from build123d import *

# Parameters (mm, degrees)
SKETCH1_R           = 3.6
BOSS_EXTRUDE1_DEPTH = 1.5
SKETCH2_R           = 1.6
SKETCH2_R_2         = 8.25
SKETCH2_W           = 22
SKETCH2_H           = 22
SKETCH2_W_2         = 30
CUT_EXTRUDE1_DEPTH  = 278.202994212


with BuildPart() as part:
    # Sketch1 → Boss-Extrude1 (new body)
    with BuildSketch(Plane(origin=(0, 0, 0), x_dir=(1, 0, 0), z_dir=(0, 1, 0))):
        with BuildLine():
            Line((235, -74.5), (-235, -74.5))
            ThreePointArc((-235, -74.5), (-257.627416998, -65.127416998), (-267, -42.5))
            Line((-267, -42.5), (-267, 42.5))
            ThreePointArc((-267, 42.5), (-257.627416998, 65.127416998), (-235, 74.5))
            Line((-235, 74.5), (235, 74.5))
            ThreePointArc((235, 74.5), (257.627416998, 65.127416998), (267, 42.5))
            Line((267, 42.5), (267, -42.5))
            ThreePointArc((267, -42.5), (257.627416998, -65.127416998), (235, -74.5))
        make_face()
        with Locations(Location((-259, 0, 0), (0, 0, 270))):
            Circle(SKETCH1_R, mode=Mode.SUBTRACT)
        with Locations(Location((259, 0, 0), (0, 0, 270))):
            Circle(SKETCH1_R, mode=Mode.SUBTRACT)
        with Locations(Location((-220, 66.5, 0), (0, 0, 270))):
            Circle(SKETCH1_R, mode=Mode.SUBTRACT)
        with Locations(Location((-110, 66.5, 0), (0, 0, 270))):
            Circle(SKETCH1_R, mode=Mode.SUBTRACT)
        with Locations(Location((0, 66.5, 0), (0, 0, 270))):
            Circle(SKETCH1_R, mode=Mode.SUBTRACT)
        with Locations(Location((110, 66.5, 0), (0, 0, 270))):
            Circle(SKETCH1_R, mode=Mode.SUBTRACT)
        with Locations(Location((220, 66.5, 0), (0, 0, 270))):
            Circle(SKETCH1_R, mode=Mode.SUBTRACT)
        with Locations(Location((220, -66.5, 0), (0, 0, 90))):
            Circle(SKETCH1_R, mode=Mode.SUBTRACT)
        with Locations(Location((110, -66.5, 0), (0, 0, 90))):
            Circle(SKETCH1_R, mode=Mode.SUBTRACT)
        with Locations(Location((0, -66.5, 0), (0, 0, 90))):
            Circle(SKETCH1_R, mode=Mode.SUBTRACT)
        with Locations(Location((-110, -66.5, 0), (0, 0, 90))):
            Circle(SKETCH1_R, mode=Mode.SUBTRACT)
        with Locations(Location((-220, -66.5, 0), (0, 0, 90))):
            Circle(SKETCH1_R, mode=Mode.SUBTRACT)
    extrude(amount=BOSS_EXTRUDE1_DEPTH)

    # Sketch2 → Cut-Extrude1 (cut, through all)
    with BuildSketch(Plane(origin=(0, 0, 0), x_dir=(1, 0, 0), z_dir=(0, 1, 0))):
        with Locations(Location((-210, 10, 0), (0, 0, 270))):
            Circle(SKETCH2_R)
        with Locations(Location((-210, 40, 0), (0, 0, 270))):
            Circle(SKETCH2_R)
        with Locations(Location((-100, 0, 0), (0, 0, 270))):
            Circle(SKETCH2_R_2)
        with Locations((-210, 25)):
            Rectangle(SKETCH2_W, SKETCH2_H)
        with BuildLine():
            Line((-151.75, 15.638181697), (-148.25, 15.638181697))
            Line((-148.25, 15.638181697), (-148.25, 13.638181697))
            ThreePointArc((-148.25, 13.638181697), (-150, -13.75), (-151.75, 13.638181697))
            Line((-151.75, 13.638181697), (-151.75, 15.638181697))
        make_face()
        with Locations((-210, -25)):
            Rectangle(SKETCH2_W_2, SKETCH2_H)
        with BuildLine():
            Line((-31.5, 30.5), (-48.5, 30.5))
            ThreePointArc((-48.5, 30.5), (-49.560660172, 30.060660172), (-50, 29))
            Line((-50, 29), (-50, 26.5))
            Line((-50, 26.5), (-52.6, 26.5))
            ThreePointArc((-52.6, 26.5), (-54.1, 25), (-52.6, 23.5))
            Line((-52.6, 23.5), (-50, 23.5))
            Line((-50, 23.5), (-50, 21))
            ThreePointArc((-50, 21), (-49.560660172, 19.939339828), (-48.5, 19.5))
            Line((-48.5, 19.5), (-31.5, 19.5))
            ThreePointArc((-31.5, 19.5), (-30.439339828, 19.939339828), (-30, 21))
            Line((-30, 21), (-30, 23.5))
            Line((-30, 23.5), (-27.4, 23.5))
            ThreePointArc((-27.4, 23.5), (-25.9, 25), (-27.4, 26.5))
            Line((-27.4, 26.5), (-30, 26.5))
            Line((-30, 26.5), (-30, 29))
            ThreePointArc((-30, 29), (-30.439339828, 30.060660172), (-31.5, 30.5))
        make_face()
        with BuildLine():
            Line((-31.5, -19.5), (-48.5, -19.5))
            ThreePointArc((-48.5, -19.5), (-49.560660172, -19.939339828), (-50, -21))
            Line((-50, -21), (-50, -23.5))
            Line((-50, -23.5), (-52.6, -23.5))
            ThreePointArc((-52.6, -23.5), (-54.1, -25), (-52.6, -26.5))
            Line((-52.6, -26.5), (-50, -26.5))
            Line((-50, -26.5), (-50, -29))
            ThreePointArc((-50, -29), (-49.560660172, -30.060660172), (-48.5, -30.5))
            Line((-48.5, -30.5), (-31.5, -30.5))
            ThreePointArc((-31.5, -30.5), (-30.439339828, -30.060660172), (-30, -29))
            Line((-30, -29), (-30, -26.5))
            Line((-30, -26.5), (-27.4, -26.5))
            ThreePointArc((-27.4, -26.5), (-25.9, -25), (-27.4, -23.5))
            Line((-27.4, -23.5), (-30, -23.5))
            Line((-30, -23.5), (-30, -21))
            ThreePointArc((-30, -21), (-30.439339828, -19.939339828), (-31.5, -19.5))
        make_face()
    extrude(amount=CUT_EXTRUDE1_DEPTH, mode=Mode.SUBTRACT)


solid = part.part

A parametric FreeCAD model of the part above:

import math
import FreeCAD as App
import Part
import Sketcher
Q = App.Units.Quantity


def add_polygon(sketch, points):
    """Adds a closed chain of lines whose ends are joined by coincident constraints."""
    first, n = sketch.GeometryCount, len(points)
    for a, b in zip(points, points[1:] + points[:1]):
        sketch.addGeometry(Part.LineSegment(App.Vector(*a, 0), App.Vector(*b, 0)), False)
    for i in range(n):
        sketch.addConstraint(Sketcher.Constraint("Coincident", first + i, 2, first + (i + 1) % n, 1))

doc = App.newDocument("Part")
body = doc.addObject("PartDesign::Body", "Body")

sketch1 = body.newObject("Sketcher::SketchObject", "Sketch")
sketch1.AttachmentSupport = (doc.getObject("XZ_Plane"), [""])
sketch1.MapMode = "FlatFace"
sketch1.addGeometry(Part.LineSegment(App.Vector(-235, 74.5, 0), App.Vector(235, 74.5, 0)), False)
sketch1.addGeometry(Part.ArcOfCircle(Part.Circle(App.Vector(235, 42.5, 0), App.Vector(0, 0, 1), 32), math.radians(0), math.radians(90)), False)
sketch1.addGeometry(Part.LineSegment(App.Vector(267, 42.5, 0), App.Vector(267, -42.5, 0)), False)
sketch1.addGeometry(Part.ArcOfCircle(Part.Circle(App.Vector(235, -42.5, 0), App.Vector(0, 0, 1), 32), math.radians(-90), math.radians(0)), False)
sketch1.addGeometry(Part.LineSegment(App.Vector(235, -74.5, 0), App.Vector(-235, -74.5, 0)), False)
sketch1.addGeometry(Part.ArcOfCircle(Part.Circle(App.Vector(-235, -42.5, 0), App.Vector(0, 0, 1), 32), math.radians(180), math.radians(270)), False)
sketch1.addGeometry(Part.LineSegment(App.Vector(-267, -42.5, 0), App.Vector(-267, 42.5, 0)), False)
sketch1.addGeometry(Part.ArcOfCircle(Part.Circle(App.Vector(-235, 42.5, 0), App.Vector(0, 0, 1), 32), math.radians(90), math.radians(180)), False)
sketch1.addGeometry(Part.Circle(App.Vector(220, 66.5, 0), App.Vector(0, 0, 1), 3.6), False)
sketch1.addGeometry(Part.Circle(App.Vector(110, 66.5, 0), App.Vector(0, 0, 1), 3.6), False)
sketch1.addGeometry(Part.Circle(App.Vector(0, 66.5, 0), App.Vector(0, 0, 1), 3.6), False)
sketch1.addGeometry(Part.Circle(App.Vector(-110, 66.5, 0), App.Vector(0, 0, 1), 3.6), False)
sketch1.addGeometry(Part.Circle(App.Vector(-220, 66.5, 0), App.Vector(0, 0, 1), 3.6), False)
sketch1.addGeometry(Part.Circle(App.Vector(259, 0, 0), App.Vector(0, 0, 1), 3.6), False)
sketch1.addGeometry(Part.Circle(App.Vector(220, -66.5, 0), App.Vector(0, 0, 1), 3.6), False)
sketch1.addGeometry(Part.Circle(App.Vector(110, -66.5, 0), App.Vector(0, 0, 1), 3.6), False)
sketch1.addGeometry(Part.Circle(App.Vector(-259, 0, 0), App.Vector(0, 0, 1), 3.6), False)
sketch1.addGeometry(Part.Circle(App.Vector(0, -66.5, 0), App.Vector(0, 0, 1), 3.6), False)
sketch1.addGeometry(Part.Circle(App.Vector(-110, -66.5, 0), App.Vector(0, 0, 1), 3.6), False)
sketch1.addGeometry(Part.Circle(App.Vector(-220, -66.5, 0), App.Vector(0, 0, 1), 3.6), False)
sketch1.addConstraint(Sketcher.Constraint("Tangent", 0, 2, 1, 2))
sketch1.addConstraint(Sketcher.Constraint("Tangent", 1, 1, 2, 1))
sketch1.addConstraint(Sketcher.Constraint("Tangent", 2, 2, 3, 2))
sketch1.addConstraint(Sketcher.Constraint("Tangent", 3, 1, 4, 1))
sketch1.addConstraint(Sketcher.Constraint("Tangent", 4, 2, 5, 2))
sketch1.addConstraint(Sketcher.Constraint("Tangent", 5, 1, 6, 1))
sketch1.addConstraint(Sketcher.Constraint("Tangent", 6, 2, 7, 2))
sketch1.addConstraint(Sketcher.Constraint("Tangent", 7, 1, 0, 1))
sketch1.addConstraint(Sketcher.Constraint("Horizontal", 0))
sketch1.addConstraint(Sketcher.Constraint("Vertical", 2))
sketch1.addConstraint(Sketcher.Constraint("Horizontal", 4))
sketch1.addConstraint(Sketcher.Constraint("Vertical", 6))
sketch1.addConstraint(Sketcher.Constraint("Equal", 1, 3))
sketch1.addConstraint(Sketcher.Constraint("Equal", 3, 5))
sketch1.addConstraint(Sketcher.Constraint("Equal", 5, 7))
sketch1.addConstraint(Sketcher.Constraint("Equal", 8, 9))
sketch1.addConstraint(Sketcher.Constraint("Equal", 9, 10))
sketch1.addConstraint(Sketcher.Constraint("Equal", 10, 11))
sketch1.addConstraint(Sketcher.Constraint("Equal", 11, 12))
sketch1.addConstraint(Sketcher.Constraint("Equal", 12, 13))
sketch1.addConstraint(Sketcher.Constraint("Equal", 13, 14))
sketch1.addConstraint(Sketcher.Constraint("Equal", 14, 15))
sketch1.addConstraint(Sketcher.Constraint("Equal", 15, 16))
sketch1.addConstraint(Sketcher.Constraint("Equal", 16, 17))
sketch1.addConstraint(Sketcher.Constraint("Equal", 17, 18))
sketch1.addConstraint(Sketcher.Constraint("Equal", 18, 19))
sketch1.addConstraint(Sketcher.Constraint("Symmetric", 1, 3, 5, 3, -1, 1))
sketch1.addConstraint(Sketcher.Constraint("Symmetric", 12, 3, 14, 3, -1, 1))
sketch1.addConstraint(Sketcher.Constraint("Symmetric", 11, 3, 15, 3, -1, 1))
sketch1.addConstraint(Sketcher.Constraint("Symmetric", 13, 3, 16, 3, -1, 1))
sketch1.addConstraint(Sketcher.Constraint("Symmetric", 10, 3, 17, 3, -1, 1))
sketch1.addConstraint(Sketcher.Constraint("Symmetric", 9, 3, 18, 3, -1, 1))
sketch1.addConstraint(Sketcher.Constraint("Symmetric", 8, 3, 19, 3, -1, 1))
sketch1.addConstraint(Sketcher.Constraint("Symmetric", 9, 3, 11, 3, -2))
sketch1.addConstraint(Sketcher.Constraint("Symmetric", 8, 3, 12, 3, -2))
sketch1.addConstraint(Sketcher.Constraint("PointOnObject", 10, 3, -2))
sketch1.addConstraint(Sketcher.Constraint("PointOnObject", 13, 3, -1))
sketch1.addConstraint(Sketcher.Constraint("Horizontal", 8, 3, 9, 3))
sketch1.addConstraint(Sketcher.Constraint("Horizontal", 9, 3, 10, 3))
sketch1.addConstraint(Sketcher.Constraint("Radius", 1, Q("32 mm")))
sketch1.addConstraint(Sketcher.Constraint("Diameter", 8, Q("7.2 mm")))
sketch1.addConstraint(Sketcher.Constraint("DistanceX", 0, 1, 0, 2, Q("470 mm")))
sketch1.addConstraint(Sketcher.Constraint("DistanceY", 2, 2, 2, 1, Q("85 mm")))
sketch1.addConstraint(Sketcher.Constraint("DistanceX", -1, 1, 8, 3, Q("220 mm")))
sketch1.addConstraint(Sketcher.Constraint("DistanceX", -1, 1, 9, 3, Q("110 mm")))
sketch1.addConstraint(Sketcher.Constraint("DistanceX", -1, 1, 13, 3, Q("259 mm")))
sketch1.addConstraint(Sketcher.Constraint("DistanceY", 1, 3, 8, 3, Q("24 mm")))
pad1 = body.newObject("PartDesign::Pad", "Pad")
pad1.Profile = sketch1
pad1.Length = 1.5
pad1.Reversed = True

sketch2 = body.newObject("Sketcher::SketchObject", "Sketch001")
sketch2.AttachmentSupport = (doc.getObject("XZ_Plane"), [""])
sketch2.MapMode = "FlatFace"
sketch2.addGeometry(Part.Circle(App.Vector(-210, -10, 0), App.Vector(0, 0, 1), 1.6), False)
sketch2.addGeometry(Part.Circle(App.Vector(-210, -40, 0), App.Vector(0, 0, 1), 1.6), False)
sketch2.addGeometry(Part.Circle(App.Vector(-100, 0, 0), App.Vector(0, 0, 1), 8.2), False)
add_polygon(sketch2, [(-221, -36), (-221, -14), (-199, -14), (-199, -36)])
sketch2.addGeometry(Part.LineSegment(App.Vector(-148.2, -15.6, 0), App.Vector(-151.8, -15.6, 0)), False)
sketch2.addGeometry(Part.LineSegment(App.Vector(-151.8, -15.6, 0), App.Vector(-151.8, -13.6, 0)), False)
sketch2.addGeometry(Part.ArcOfCircle(Part.Circle(App.Vector(-150, 0, 0), App.Vector(0, 0, 1), 13.8), math.radians(-83), math.radians(263)), False)
sketch2.addGeometry(Part.LineSegment(App.Vector(-148.2, -13.6, 0), App.Vector(-148.2, -15.6, 0)), False)
add_polygon(sketch2, [(-225, 14), (-225, 36), (-195, 36), (-195, 14)])
sketch2.addGeometry(Part.LineSegment(App.Vector(-31.5, -30.5, 0), App.Vector(-48.5, -30.5, 0)), False)
sketch2.addGeometry(Part.ArcOfCircle(Part.Circle(App.Vector(-48.5, -29, 0), App.Vector(0, 0, 1), 1.5), math.radians(180), math.radians(270)), False)
sketch2.addGeometry(Part.LineSegment(App.Vector(-50, -29, 0), App.Vector(-50, -26.5, 0)), False)
sketch2.addGeometry(Part.LineSegment(App.Vector(-50, -26.5, 0), App.Vector(-52.6, -26.5, 0)), False)
sketch2.addGeometry(Part.ArcOfCircle(Part.Circle(App.Vector(-52.6, -25, 0), App.Vector(0, 0, 1), 1.5), math.radians(90), math.radians(270)), False)
sketch2.addGeometry(Part.LineSegment(App.Vector(-52.6, -23.5, 0), App.Vector(-50, -23.5, 0)), False)
sketch2.addGeometry(Part.LineSegment(App.Vector(-50, -23.5, 0), App.Vector(-50, -21, 0)), False)
sketch2.addGeometry(Part.ArcOfCircle(Part.Circle(App.Vector(-48.5, -21, 0), App.Vector(0, 0, 1), 1.5), math.radians(90), math.radians(180)), False)
sketch2.addGeometry(Part.LineSegment(App.Vector(-48.5, -19.5, 0), App.Vector(-31.5, -19.5, 0)), False)
sketch2.addGeometry(Part.ArcOfCircle(Part.Circle(App.Vector(-31.5, -21, 0), App.Vector(0, 0, 1), 1.5), math.radians(0), math.radians(90)), False)
sketch2.addGeometry(Part.LineSegment(App.Vector(-30, -21, 0), App.Vector(-30, -23.5, 0)), False)
sketch2.addGeometry(Part.LineSegment(App.Vector(-30, -23.5, 0), App.Vector(-27.4, -23.5, 0)), False)
sketch2.addGeometry(Part.ArcOfCircle(Part.Circle(App.Vector(-27.4, -25, 0), App.Vector(0, 0, 1), 1.5), math.radians(-90), math.radians(90)), False)
sketch2.addGeometry(Part.LineSegment(App.Vector(-27.4, -26.5, 0), App.Vector(-30, -26.5, 0)), False)
sketch2.addGeometry(Part.LineSegment(App.Vector(-30, -26.5, 0), App.Vector(-30, -29, 0)), False)
sketch2.addGeometry(Part.ArcOfCircle(Part.Circle(App.Vector(-31.5, -29, 0), App.Vector(0, 0, 1), 1.5), math.radians(-90), math.radians(0)), False)
sketch2.addGeometry(Part.LineSegment(App.Vector(-31.5, 19.5, 0), App.Vector(-48.5, 19.5, 0)), False)
sketch2.addGeometry(Part.ArcOfCircle(Part.Circle(App.Vector(-48.5, 21, 0), App.Vector(0, 0, 1), 1.5), math.radians(180), math.radians(270)), False)
sketch2.addGeometry(Part.LineSegment(App.Vector(-50, 21, 0), App.Vector(-50, 23.5, 0)), False)
sketch2.addGeometry(Part.LineSegment(App.Vector(-50, 23.5, 0), App.Vector(-52.6, 23.5, 0)), False)
sketch2.addGeometry(Part.ArcOfCircle(Part.Circle(App.Vector(-52.6, 25, 0), App.Vector(0, 0, 1), 1.5), math.radians(90), math.radians(270)), False)
sketch2.addGeometry(Part.LineSegment(App.Vector(-52.6, 26.5, 0), App.Vector(-50, 26.5, 0)), False)
sketch2.addGeometry(Part.LineSegment(App.Vector(-50, 26.5, 0), App.Vector(-50, 29, 0)), False)
sketch2.addGeometry(Part.ArcOfCircle(Part.Circle(App.Vector(-48.5, 29, 0), App.Vector(0, 0, 1), 1.5), math.radians(90), math.radians(180)), False)
sketch2.addGeometry(Part.LineSegment(App.Vector(-48.5, 30.5, 0), App.Vector(-31.5, 30.5, 0)), False)
sketch2.addGeometry(Part.ArcOfCircle(Part.Circle(App.Vector(-31.5, 29, 0), App.Vector(0, 0, 1), 1.5), math.radians(0), math.radians(90)), False)
sketch2.addGeometry(Part.LineSegment(App.Vector(-30, 29, 0), App.Vector(-30, 26.5, 0)), False)
sketch2.addGeometry(Part.LineSegment(App.Vector(-30, 26.5, 0), App.Vector(-27.4, 26.5, 0)), False)
sketch2.addGeometry(Part.ArcOfCircle(Part.Circle(App.Vector(-27.4, 25, 0), App.Vector(0, 0, 1), 1.5), math.radians(-90), math.radians(90)), False)
sketch2.addGeometry(Part.LineSegment(App.Vector(-27.4, 23.5, 0), App.Vector(-30, 23.5, 0)), False)
sketch2.addGeometry(Part.LineSegment(App.Vector(-30, 23.5, 0), App.Vector(-30, 21, 0)), False)
sketch2.addGeometry(Part.ArcOfCircle(Part.Circle(App.Vector(-31.5, 21, 0), App.Vector(0, 0, 1), 1.5), math.radians(-90), math.radians(0)), False)
sketch2.addConstraint(Sketcher.Constraint("Coincident", 7, 2, 8, 1))
sketch2.addConstraint(Sketcher.Constraint("Coincident", 8, 2, 9, 2))
sketch2.addConstraint(Sketcher.Constraint("Coincident", 9, 1, 10, 1))
sketch2.addConstraint(Sketcher.Constraint("Coincident", 10, 2, 7, 1))
sketch2.addConstraint(Sketcher.Constraint("Tangent", 15, 2, 16, 2))
sketch2.addConstraint(Sketcher.Constraint("Tangent", 16, 1, 17, 1))
sketch2.addConstraint(Sketcher.Constraint("Coincident", 17, 2, 18, 1))
sketch2.addConstraint(Sketcher.Constraint("Tangent", 18, 2, 19, 2))
sketch2.addConstraint(Sketcher.Constraint("Tangent", 19, 1, 20, 1))
sketch2.addConstraint(Sketcher.Constraint("Coincident", 20, 2, 21, 1))
sketch2.addConstraint(Sketcher.Constraint("Tangent", 21, 2, 22, 2))
sketch2.addConstraint(Sketcher.Constraint("Tangent", 22, 1, 23, 1))
sketch2.addConstraint(Sketcher.Constraint("Tangent", 23, 2, 24, 2))
sketch2.addConstraint(Sketcher.Constraint("Tangent", 24, 1, 25, 1))
sketch2.addConstraint(Sketcher.Constraint("Coincident", 25, 2, 26, 1))
sketch2.addConstraint(Sketcher.Constraint("Tangent", 26, 2, 27, 2))
sketch2.addConstraint(Sketcher.Constraint("Tangent", 27, 1, 28, 1))
sketch2.addConstraint(Sketcher.Constraint("Coincident", 28, 2, 29, 1))
sketch2.addConstraint(Sketcher.Constraint("Tangent", 29, 2, 30, 2))
sketch2.addConstraint(Sketcher.Constraint("Tangent", 30, 1, 15, 1))
sketch2.addConstraint(Sketcher.Constraint("Tangent", 31, 2, 32, 2))
sketch2.addConstraint(Sketcher.Constraint("Tangent", 32, 1, 33, 1))
sketch2.addConstraint(Sketcher.Constraint("Coincident", 33, 2, 34, 1))
sketch2.addConstraint(Sketcher.Constraint("Tangent", 34, 2, 35, 2))
sketch2.addConstraint(Sketcher.Constraint("Tangent", 35, 1, 36, 1))
sketch2.addConstraint(Sketcher.Constraint("Coincident", 36, 2, 37, 1))
sketch2.addConstraint(Sketcher.Constraint("Tangent", 37, 2, 38, 2))
sketch2.addConstraint(Sketcher.Constraint("Tangent", 38, 1, 39, 1))
sketch2.addConstraint(Sketcher.Constraint("Tangent", 39, 2, 40, 2))
sketch2.addConstraint(Sketcher.Constraint("Tangent", 40, 1, 41, 1))
sketch2.addConstraint(Sketcher.Constraint("Coincident", 41, 2, 42, 1))
sketch2.addConstraint(Sketcher.Constraint("Tangent", 42, 2, 43, 2))
sketch2.addConstraint(Sketcher.Constraint("Tangent", 43, 1, 44, 1))
sketch2.addConstraint(Sketcher.Constraint("Coincident", 44, 2, 45, 1))
sketch2.addConstraint(Sketcher.Constraint("Tangent", 45, 2, 46, 2))
sketch2.addConstraint(Sketcher.Constraint("Tangent", 46, 1, 31, 1))
sketch2.addConstraint(Sketcher.Constraint("Vertical", 3))
sketch2.addConstraint(Sketcher.Constraint("Horizontal", 4))
sketch2.addConstraint(Sketcher.Constraint("Vertical", 5))
sketch2.addConstraint(Sketcher.Constraint("Horizontal", 6))
sketch2.addConstraint(Sketcher.Constraint("Horizontal", 7))
sketch2.addConstraint(Sketcher.Constraint("Vertical", 8))
sketch2.addConstraint(Sketcher.Constraint("Vertical", 10))
sketch2.addConstraint(Sketcher.Constraint("Vertical", 11))
sketch2.addConstraint(Sketcher.Constraint("Horizontal", 12))
sketch2.addConstraint(Sketcher.Constraint("Vertical", 13))
sketch2.addConstraint(Sketcher.Constraint("Horizontal", 14))
sketch2.addConstraint(Sketcher.Constraint("Horizontal", 15))
sketch2.addConstraint(Sketcher.Constraint("Vertical", 17))
sketch2.addConstraint(Sketcher.Constraint("Horizontal", 18))
sketch2.addConstraint(Sketcher.Constraint("Horizontal", 20))
sketch2.addConstraint(Sketcher.Constraint("Vertical", 21))
sketch2.addConstraint(Sketcher.Constraint("Horizontal", 23))
sketch2.addConstraint(Sketcher.Constraint("Vertical", 25))
sketch2.addConstraint(Sketcher.Constraint("Horizontal", 26))
sketch2.addConstraint(Sketcher.Constraint("Horizontal", 28))
sketch2.addConstraint(Sketcher.Constraint("Vertical", 29))
sketch2.addConstraint(Sketcher.Constraint("Horizontal", 31))
sketch2.addConstraint(Sketcher.Constraint("Vertical", 33))
sketch2.addConstraint(Sketcher.Constraint("Horizontal", 34))
sketch2.addConstraint(Sketcher.Constraint("Horizontal", 36))
sketch2.addConstraint(Sketcher.Constraint("Vertical", 37))
sketch2.addConstraint(Sketcher.Constraint("Horizontal", 39))
sketch2.addConstraint(Sketcher.Constraint("Vertical", 41))
sketch2.addConstraint(Sketcher.Constraint("Horizontal", 42))
sketch2.addConstraint(Sketcher.Constraint("Horizontal", 44))
sketch2.addConstraint(Sketcher.Constraint("Vertical", 45))
sketch2.addConstraint(Sketcher.Constraint("Equal", 0, 1))
sketch2.addConstraint(Sketcher.Constraint("Equal", 16, 19))
sketch2.addConstraint(Sketcher.Constraint("Equal", 19, 22))
sketch2.addConstraint(Sketcher.Constraint("Equal", 22, 24))
sketch2.addConstraint(Sketcher.Constraint("Equal", 24, 27))
sketch2.addConstraint(Sketcher.Constraint("Equal", 27, 30))
sketch2.addConstraint(Sketcher.Constraint("Equal", 30, 32))
sketch2.addConstraint(Sketcher.Constraint("Equal", 32, 35))
sketch2.addConstraint(Sketcher.Constraint("Equal", 35, 38))
sketch2.addConstraint(Sketcher.Constraint("Equal", 38, 40))
sketch2.addConstraint(Sketcher.Constraint("Equal", 40, 43))
sketch2.addConstraint(Sketcher.Constraint("Equal", 43, 46))
sketch2.addConstraint(Sketcher.Constraint("Symmetric", 22, 3, 32, 3, -1))
sketch2.addConstraint(Sketcher.Constraint("Symmetric", 19, 3, 35, 3, -1))
sketch2.addConstraint(Sketcher.Constraint("Symmetric", 16, 3, 38, 3, -1))
sketch2.addConstraint(Sketcher.Constraint("Symmetric", 27, 3, 43, 3, -1))
sketch2.addConstraint(Sketcher.Constraint("PointOnObject", 2, 3, -1))
sketch2.addConstraint(Sketcher.Constraint("PointOnObject", 9, 3, -1))
sketch2.addConstraint(Sketcher.Constraint("Horizontal", 19, 3, 27, 3))
sketch2.addConstraint(Sketcher.Constraint("Horizontal", 8, 2, 9, 1))
sketch2.addConstraint(Sketcher.Constraint("Vertical", 0, 3, 1, 3))
sketch2.addConstraint(Sketcher.Constraint("Vertical", 16, 3, 22, 3))
sketch2.addConstraint(Sketcher.Constraint("Vertical", 24, 3, 30, 3))
sketch2.addConstraint(Sketcher.Constraint("Vertical", 30, 3, 40, 3))
sketch2.addConstraint(Sketcher.Constraint("Vertical", 40, 3, 46, 3))
sketch2.addConstraint(Sketcher.Constraint("Equal", 20, 26))
sketch2.addConstraint(Sketcher.Constraint("Equal", 6, 3))
sketch2.addConstraint(Sketcher.Constraint("Equal", 5, 11))
sketch2.addConstraint(Sketcher.Constraint("Equal", 17, 21))
sketch2.addConstraint(Sketcher.Constraint("Diameter", 0, Q("3.2 mm")))
sketch2.addConstraint(Sketcher.Constraint("Diameter", 2, Q("16.5 mm")))
sketch2.addConstraint(Sketcher.Constraint("Radius", 16, Q("1.5 mm")))
sketch2.addConstraint(Sketcher.Constraint("DistanceX", 4, 1, 4, 2, Q("22 mm")))
sketch2.addConstraint(Sketcher.Constraint("DistanceX", 12, 1, 12, 2, Q("30 mm")))
sketch2.addConstraint(Sketcher.Constraint("DistanceX", 15, 2, 15, 1, Q("17 mm")))
sketch2.addConstraint(Sketcher.Constraint("DistanceY", 8, 1, 8, 2, Q("2 mm")))
sketch2.addConstraint(Sketcher.Constraint("Radius", 9, Q("13.75 mm")))
sketch2.addConstraint(Sketcher.Constraint("DistanceX", 7, 2, 7, 1, Q("3.5 mm")))
sketch2.addConstraint(Sketcher.Constraint("DistanceX", 18, 2, 18, 1, Q("2.6 mm")))
sketch2.addConstraint(Sketcher.Constraint("DistanceY", 17, 1, 17, 2, Q("2.5 mm")))
sketch2.addConstraint(Sketcher.Constraint("DistanceX", 0, 3, -1, 1, Q("210 mm")))
sketch2.addConstraint(Sketcher.Constraint("DistanceY", 0, 3, -1, 1, Q("10 mm")))
sketch2.addConstraint(Sketcher.Constraint("DistanceY", 1, 3, -1, 1, Q("40 mm")))
sketch2.addConstraint(Sketcher.Constraint("DistanceX", 2, 3, -1, 1, Q("100 mm")))
sketch2.addConstraint(Sketcher.Constraint("DistanceX", 9, 3, -1, 1, Q("150 mm")))
sketch2.addConstraint(Sketcher.Constraint("DistanceY", 16, 3, -1, 1, Q("29 mm")))
sketch2.addConstraint(Sketcher.Constraint("DistanceX", 3, 2, -1, 1, Q("221 mm")))
sketch2.addConstraint(Sketcher.Constraint("DistanceY", 3, 2, -1, 1, Q("14 mm")))
sketch2.addConstraint(Sketcher.Constraint("DistanceX", 11, 2, -1, 1, Q("225 mm")))
sketch2.addConstraint(Sketcher.Constraint("DistanceY", -1, 1, 11, 2, Q("36 mm")))
sketch2.addConstraint(Sketcher.Constraint("DistanceX", 16, 1, -1, 1, Q("50 mm")))
pocket1 = body.newObject("PartDesign::Pocket", "Pocket")
pocket1.Profile = sketch2
pocket1.Type = "ThroughAll"

doc.recompute()
